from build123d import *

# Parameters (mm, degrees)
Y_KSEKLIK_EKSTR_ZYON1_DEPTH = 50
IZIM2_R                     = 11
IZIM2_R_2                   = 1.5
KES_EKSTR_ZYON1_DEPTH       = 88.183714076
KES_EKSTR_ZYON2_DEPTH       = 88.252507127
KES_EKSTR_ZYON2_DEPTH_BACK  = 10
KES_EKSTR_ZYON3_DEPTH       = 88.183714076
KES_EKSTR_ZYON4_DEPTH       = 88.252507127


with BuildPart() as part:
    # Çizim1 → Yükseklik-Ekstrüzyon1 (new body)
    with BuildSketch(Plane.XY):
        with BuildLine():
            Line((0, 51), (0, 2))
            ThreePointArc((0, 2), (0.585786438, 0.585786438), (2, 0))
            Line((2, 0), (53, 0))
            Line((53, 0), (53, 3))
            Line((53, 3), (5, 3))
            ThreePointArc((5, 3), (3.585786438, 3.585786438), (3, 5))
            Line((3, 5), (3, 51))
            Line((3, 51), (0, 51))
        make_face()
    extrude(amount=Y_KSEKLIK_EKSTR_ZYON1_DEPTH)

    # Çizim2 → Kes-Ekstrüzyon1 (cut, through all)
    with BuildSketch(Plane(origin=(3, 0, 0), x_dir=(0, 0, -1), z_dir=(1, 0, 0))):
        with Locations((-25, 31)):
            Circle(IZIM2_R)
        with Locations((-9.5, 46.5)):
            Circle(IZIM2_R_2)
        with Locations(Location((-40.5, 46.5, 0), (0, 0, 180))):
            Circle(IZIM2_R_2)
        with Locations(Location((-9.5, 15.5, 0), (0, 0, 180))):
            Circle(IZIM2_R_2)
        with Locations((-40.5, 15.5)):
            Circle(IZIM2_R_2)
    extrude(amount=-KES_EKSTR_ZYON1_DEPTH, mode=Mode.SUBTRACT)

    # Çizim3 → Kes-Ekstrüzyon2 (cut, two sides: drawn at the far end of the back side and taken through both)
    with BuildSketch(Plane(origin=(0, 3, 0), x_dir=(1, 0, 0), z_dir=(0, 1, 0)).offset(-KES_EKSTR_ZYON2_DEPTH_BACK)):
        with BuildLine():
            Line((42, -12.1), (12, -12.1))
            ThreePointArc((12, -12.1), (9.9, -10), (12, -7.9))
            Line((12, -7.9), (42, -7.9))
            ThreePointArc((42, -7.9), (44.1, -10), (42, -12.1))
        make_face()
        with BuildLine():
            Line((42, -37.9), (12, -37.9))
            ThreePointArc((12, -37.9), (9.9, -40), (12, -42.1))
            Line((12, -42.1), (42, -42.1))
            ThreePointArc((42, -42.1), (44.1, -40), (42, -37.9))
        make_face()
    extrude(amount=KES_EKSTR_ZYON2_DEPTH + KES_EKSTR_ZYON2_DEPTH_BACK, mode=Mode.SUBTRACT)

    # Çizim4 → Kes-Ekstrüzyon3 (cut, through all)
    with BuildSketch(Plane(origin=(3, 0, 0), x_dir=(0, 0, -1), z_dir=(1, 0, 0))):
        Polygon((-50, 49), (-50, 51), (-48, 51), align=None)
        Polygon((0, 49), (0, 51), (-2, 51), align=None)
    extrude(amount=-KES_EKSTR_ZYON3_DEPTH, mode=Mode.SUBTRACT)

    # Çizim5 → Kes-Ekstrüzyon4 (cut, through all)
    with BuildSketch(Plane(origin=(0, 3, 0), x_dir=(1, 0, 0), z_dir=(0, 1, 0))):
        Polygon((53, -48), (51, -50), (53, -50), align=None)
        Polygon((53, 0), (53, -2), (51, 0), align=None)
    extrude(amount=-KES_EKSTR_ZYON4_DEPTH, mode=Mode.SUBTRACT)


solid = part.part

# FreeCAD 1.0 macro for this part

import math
import FreeCAD as App
import Part
import Sketcher

V = App.Vector


def add_polygon(sketch, points):
    """Adds a closed chain of lines whose ends are joined by coincident constraints."""
    first, n = sketch.GeometryCount, len(points)
    for a, b in zip(points, points[1:] + points[:1]):
        sketch.addGeometry(Part.LineSegment(App.Vector(*a, 0), App.Vector(*b, 0)), False)
    for i in range(n):
        sketch.addConstraint(Sketcher.Constraint("Coincident", first + i, 2, first + (i + 1) % n, 1))

doc = App.newDocument("Part")
body = doc.addObject("PartDesign::Body", "Body")

sketch1 = body.newObject("Sketcher::SketchObject", "Sketch")
sketch1.AttachmentSupport = (doc.getObject("XY_Plane"), [""])
sketch1.MapMode = "FlatFace"
sketch1.addGeometry(Part.LineSegment(V(0, 51, 0), V(0, 2, 0)), False)
sketch1.addGeometry(Part.ArcOfCircle(Part.Circle(V(2, 2, 0), V(0, 0, 1), 2), math.radians(-180), math.radians(-90)), False)
sketch1.addGeometry(Part.LineSegment(V(2, 0, 0), V(53, 0, 0)), False)
sketch1.addGeometry(Part.LineSegment(V(53, 0, 0), V(53, 3, 0)), False)
sketch1.addGeometry(Part.LineSegment(V(53, 3, 0), V(5, 3, 0)), False)
sketch1.addGeometry(Part.ArcOfCircle(Part.Circle(V(5, 5, 0), V(0, 0, 1), 2), math.radians(-180), math.radians(-90)), False)
sketch1.addGeometry(Part.LineSegment(V(3, 5, 0), V(3, 51, 0)), False)
sketch1.addGeometry(Part.LineSegment(V(3, 51, 0), V(0, 51, 0)), False)
sketch1.addConstraint(Sketcher.Constraint("Tangent", 0, 2, 1, 1))
sketch1.addConstraint(Sketcher.Constraint("Tangent", 1, 2, 2, 1))
sketch1.addConstraint(Sketcher.Constraint("Coincident", 2, 2, 3, 1))
sketch1.addConstraint(Sketcher.Constraint("Coincident", 3, 2, 4, 1))
sketch1.addConstraint(Sketcher.Constraint("Tangent", 4, 2, 5, 2))
sketch1.addConstraint(Sketcher.Constraint("Tangent", 5, 1, 6, 1))
sketch1.addConstraint(Sketcher.Constraint("Coincident", 6, 2, 7, 1))
sketch1.addConstraint(Sketcher.Constraint("Coincident", 7, 2, 0, 1))
sketch1.addConstraint(Sketcher.Constraint("Vertical", 0))
sketch1.addConstraint(Sketcher.Constraint("Horizontal", 2))
sketch1.addConstraint(Sketcher.Constraint("Vertical", 3))
sketch1.addConstraint(Sketcher.Constraint("Horizontal", 4))
sketch1.addConstraint(Sketcher.Constraint("Vertical", 6))
sketch1.addConstraint(Sketcher.Constraint("Horizontal", 7))
sketch1.addConstraint(Sketcher.Constraint("Equal", 1, 5))
sketch1.addConstraint(Sketcher.Constraint("PointOnObject", 0, 2, -2))
sketch1.addConstraint(Sketcher.Constraint("PointOnObject", 1, 2, -1))
sketch1.addConstraint(Sketcher.Constraint("Equal", 7, 3))
sketch1.addConstraint(Sketcher.Constraint("Radius", 1, 2.0))
sketch1.addConstraint(Sketcher.Constraint("DistanceX", 2, 1, 2, 2, 51.0))
sketch1.addConstraint(Sketcher.Constraint("DistanceX", 4, 2, 4, 1, 48.0))
sketch1.addConstraint(Sketcher.Constraint("DistanceY", 0, 2, 0, 1, 49.0))
pad1 = body.newObject("PartDesign::Pad", "Pad")
pad1.Profile = sketch1
pad1.Length = 50

sketch2 = body.newObject("Sketcher::SketchObject", "Sketch001")
sketch2.AttachmentSupport = (doc.getObject("YZ_Plane"), [""])
sketch2.MapMode = "FlatFace"
sketch2.AttachmentOffset = App.Placement(V(0, 0, 3), App.Rotation())
sketch2.addGeometry(Part.Circle(V(31, 25, 0), V(0, 0, 1), 11), False)
sketch2.addGeometry(Part.Circle(V(46.5, 9.5, 0), V(0, 0, 1), 1.5), False)
sketch2.addGeometry(Part.Circle(V(46.5, 40.5, 0), V(0, 0, 1), 1.5), False)
sketch2.addGeometry(Part.Circle(V(15.5, 9.5, 0), V(0, 0, 1), 1.5), False)
sketch2.addGeometry(Part.Circle(V(15.5, 40.5, 0), V(0, 0, 1), 1.5), False)
sketch2.addConstraint(Sketcher.Constraint("Equal", 1, 2))
sketch2.addConstraint(Sketcher.Constraint("Equal", 2, 3))
sketch2.addConstraint(Sketcher.Constraint("Equal", 3, 4))
sketch2.addConstraint(Sketcher.Constraint("Horizontal", 1, 3, 3, 3))
sketch2.addConstraint(Sketcher.Constraint("Horizontal", 2, 3, 4, 3))
sketch2.addConstraint(Sketcher.Constraint("Vertical", 1, 3, 2, 3))
sketch2.addConstraint(Sketcher.Constraint("Vertical", 3, 3, 4, 3))
sketch2.addConstraint(Sketcher.Constraint("Diameter", 0, 22.0))
sketch2.addConstraint(Sketcher.Constraint("Diameter", 1, 3.0))
sketch2.addConstraint(Sketcher.Constraint("DistanceX", -1, 1, 0, 3, 31.0))
sketch2.addConstraint(Sketcher.Constraint("DistanceY", -1, 1, 0, 3, 25.0))
sketch2.addConstraint(Sketcher.Constraint("DistanceY", 1, 3, 2, 3, 31.0))
sketch2.addConstraint(Sketcher.Constraint("DistanceX", 3, 3, 1, 3, 31.0))
sketch2.addConstraint(Sketcher.Constraint("DistanceX", -1, 1, 1, 3, 46.5))
sketch2.addConstraint(Sketcher.Constraint("DistanceY", -1, 1, 1, 3, 9.5))
pocket1 = body.newObject("PartDesign::Pocket", "Pocket")
pocket1.Profile = sketch2
pocket1.Type = "ThroughAll"

sketch3 = body.newObject("Sketcher::SketchObject", "Sketch002")
sketch3.AttachmentSupport = (doc.getObject("XZ_Plane"), [""])
sketch3.MapMode = "FlatFace"
sketch3.AttachmentOffset = App.Placement(V(0, 0, -3), App.Rotation())
sketch3.addGeometry(Part.LineSegment(V(12, 12.1, 0), V(42, 12.1, 0)), False)
sketch3.addGeometry(Part.ArcOfCircle(Part.Circle(V(42, 10, 0), V(0, 0, 1), 2.1), math.radians(-90), math.radians(90)), False)
sketch3.addGeometry(Part.LineSegment(V(42, 7.9, 0), V(12, 7.9, 0)), False)
sketch3.addGeometry(Part.ArcOfCircle(Part.Circle(V(12, 10, 0), V(0, 0, 1), 2.1), math.radians(90), math.radians(270)), False)
sketch3.addGeometry(Part.LineSegment(V(42, 37.9, 0), V(12, 37.9, 0)), False)
sketch3.addGeometry(Part.ArcOfCircle(Part.Circle(V(12, 40, 0), V(0, 0, 1), 2.1), math.radians(90), math.radians(270)), False)
sketch3.addGeometry(Part.LineSegment(V(12, 42.1, 0), V(42, 42.1, 0)), False)
sketch3.addGeometry(Part.ArcOfCircle(Part.Circle(V(42, 40, 0), V(0, 0, 1), 2.1), math.radians(-90), math.radians(90)), False)
sketch3.addConstraint(Sketcher.Constraint("Tangent", 0, 2, 1, 2))
sketch3.addConstraint(Sketcher.Constraint("Tangent", 1, 1, 2, 1))
sketch3.addConstraint(Sketcher.Constraint("Tangent", 2, 2, 3, 2))
sketch3.addConstraint(Sketcher.Constraint("Tangent", 3, 1, 0, 1))
sketch3.addConstraint(Sketcher.Constraint("Tangent", 4, 2, 5, 2))
sketch3.addConstraint(Sketcher.Constraint("Tangent", 5, 1, 6, 1))
sketch3.addConstraint(Sketcher.Constraint("Tangent", 6, 2, 7, 2))
sketch3.addConstraint(Sketcher.Constraint("Tangent", 7, 1, 4, 1))
sketch3.addConstraint(Sketcher.Constraint("Horizontal", 0))
sketch3.addConstraint(Sketcher.Constraint("Horizontal", 2))
sketch3.addConstraint(Sketcher.Constraint("Horizontal", 4))
sketch3.addConstraint(Sketcher.Constraint("Horizontal", 6))
sketch3.addConstraint(Sketcher.Constraint("Equal", 3, 5))
sketch3.addConstraint(Sketcher.Constraint("Vertical", 3, 3, 5, 3))
sketch3.addConstraint(Sketcher.Constraint("Vertical", 1, 3, 7, 3))
sketch3.addConstraint(Sketcher.Constraint("Radius", 1, 2.1))
sketch3.addConstraint(Sketcher.Constraint("DistanceX", 0, 1, 0, 2, 30.0))
sketch3.addConstraint(Sketcher.Constraint("DistanceX", -1, 1, 1, 3, 42.0))
sketch3.addConstraint(Sketcher.Constraint("DistanceY", -1, 1, 1, 3, 10.0))
sketch3.addConstraint(Sketcher.Constraint("DistanceY", -1, 1, 5, 3, 40.0))
pocket2 = body.newObject("PartDesign::Pocket", "Pocket001")
pocket2.Profile = sketch3
pocket2.Type = "ThroughAll"
pocket2.Midplane = True

sketch4 = body.newObject("Sketcher::SketchObject", "Sketch003")
sketch4.AttachmentSupport = (doc.getObject("YZ_Plane"), [""])
sketch4.MapMode = "FlatFace"
sketch4.AttachmentOffset = App.Placement(V(0, 0, 3), App.Rotation())
add_polygon(sketch4, [(51, 50), (49, 50), (51, 48)])
add_polygon(sketch4, [(49, 0), (51, 0), (51, 2)])
sketch4.addConstraint(Sketcher.Constraint("Horizontal", 0))
sketch4.addConstraint(Sketcher.Constraint("Vertical", 2))
sketch4.addConstraint(Sketcher.Constraint("Horizontal", 3))
sketch4.addConstraint(Sketcher.Constraint("Vertical", 4))
sketch4.addConstraint(Sketcher.Constraint("PointOnObject", 3, 2, -1))
sketch4.addConstraint(Sketcher.Constraint("Perpendicular", 1, 5))
sketch4.addConstraint(Sketcher.Constraint("Vertical", 2, 2, 3, 2))
sketch4.addConstraint(Sketcher.Constraint("Vertical", 0, 2, 5, 2))
sketch4.addConstraint(Sketcher.Constraint("Equal", 3, 2))
sketch4.addConstraint(Sketcher.Constraint("DistanceX", 0, 2, 0, 1, 2.0))
sketch4.addConstraint(Sketcher.Constraint("DistanceX", -1, 1, 0, 2, 49.0))
sketch4.addConstraint(Sketcher.Constraint("DistanceY", -1, 1, 0, 2, 50.0))
pocket3 = body.newObject("PartDesign::Pocket", "Pocket002")
pocket3.Profile = sketch4
pocket3.Type = "ThroughAll"

sketch5 = body.newObject("Sketcher::SketchObject", "Sketch004")
sketch5.AttachmentSupport = (doc.getObject("XZ_Plane"), [""])
sketch5.MapMode = "FlatFace"
sketch5.AttachmentOffset = App.Placement(V(0, 0, -3), App.Rotation())
add_polygon(sketch5, [(53, 48), (51, 50), (53, 50)])
add_polygon(sketch5, [(53, 2), (53, 0), (51, 0)])
sketch5.addConstraint(Sketcher.Constraint("Horizontal", 1))
sketch5.addConstraint(Sketcher.Constraint("Vertical", 2))
sketch5.addConstraint(Sketcher.Constraint("Vertical", 3))
sketch5.addConstraint(Sketcher.Constraint("Horizontal", 4))
sketch5.addConstraint(Sketcher.Constraint("PointOnObject", 3, 2, -1))
sketch5.addConstraint(Sketcher.Constraint("Perpendicular", 0, 5))
sketch5.addConstraint(Sketcher.Constraint("Vertical", 2, 2, 3, 2))
sketch5.addConstraint(Sketcher.Constraint("Vertical", 0, 2, 4, 2))
sketch5.addConstraint(Sketcher.Constraint("Equal", 4, 2))
sketch5.addConstraint(Sketcher.Constraint("DistanceX", 1, 1, 1, 2, 2.0))
sketch5.addConstraint(Sketcher.Constraint("DistanceX", -1, 1, 0, 2, 51.0))
sketch5.addConstraint(Sketcher.Constraint("DistanceY", -1, 1, 0, 2, 50.0))
pocket4 = body.newObject("PartDesign::Pocket", "Pocket003")
pocket4.Profile = sketch5
pocket4.Type = "ThroughAll"
pocket4.Reversed = True

doc.recompute()
